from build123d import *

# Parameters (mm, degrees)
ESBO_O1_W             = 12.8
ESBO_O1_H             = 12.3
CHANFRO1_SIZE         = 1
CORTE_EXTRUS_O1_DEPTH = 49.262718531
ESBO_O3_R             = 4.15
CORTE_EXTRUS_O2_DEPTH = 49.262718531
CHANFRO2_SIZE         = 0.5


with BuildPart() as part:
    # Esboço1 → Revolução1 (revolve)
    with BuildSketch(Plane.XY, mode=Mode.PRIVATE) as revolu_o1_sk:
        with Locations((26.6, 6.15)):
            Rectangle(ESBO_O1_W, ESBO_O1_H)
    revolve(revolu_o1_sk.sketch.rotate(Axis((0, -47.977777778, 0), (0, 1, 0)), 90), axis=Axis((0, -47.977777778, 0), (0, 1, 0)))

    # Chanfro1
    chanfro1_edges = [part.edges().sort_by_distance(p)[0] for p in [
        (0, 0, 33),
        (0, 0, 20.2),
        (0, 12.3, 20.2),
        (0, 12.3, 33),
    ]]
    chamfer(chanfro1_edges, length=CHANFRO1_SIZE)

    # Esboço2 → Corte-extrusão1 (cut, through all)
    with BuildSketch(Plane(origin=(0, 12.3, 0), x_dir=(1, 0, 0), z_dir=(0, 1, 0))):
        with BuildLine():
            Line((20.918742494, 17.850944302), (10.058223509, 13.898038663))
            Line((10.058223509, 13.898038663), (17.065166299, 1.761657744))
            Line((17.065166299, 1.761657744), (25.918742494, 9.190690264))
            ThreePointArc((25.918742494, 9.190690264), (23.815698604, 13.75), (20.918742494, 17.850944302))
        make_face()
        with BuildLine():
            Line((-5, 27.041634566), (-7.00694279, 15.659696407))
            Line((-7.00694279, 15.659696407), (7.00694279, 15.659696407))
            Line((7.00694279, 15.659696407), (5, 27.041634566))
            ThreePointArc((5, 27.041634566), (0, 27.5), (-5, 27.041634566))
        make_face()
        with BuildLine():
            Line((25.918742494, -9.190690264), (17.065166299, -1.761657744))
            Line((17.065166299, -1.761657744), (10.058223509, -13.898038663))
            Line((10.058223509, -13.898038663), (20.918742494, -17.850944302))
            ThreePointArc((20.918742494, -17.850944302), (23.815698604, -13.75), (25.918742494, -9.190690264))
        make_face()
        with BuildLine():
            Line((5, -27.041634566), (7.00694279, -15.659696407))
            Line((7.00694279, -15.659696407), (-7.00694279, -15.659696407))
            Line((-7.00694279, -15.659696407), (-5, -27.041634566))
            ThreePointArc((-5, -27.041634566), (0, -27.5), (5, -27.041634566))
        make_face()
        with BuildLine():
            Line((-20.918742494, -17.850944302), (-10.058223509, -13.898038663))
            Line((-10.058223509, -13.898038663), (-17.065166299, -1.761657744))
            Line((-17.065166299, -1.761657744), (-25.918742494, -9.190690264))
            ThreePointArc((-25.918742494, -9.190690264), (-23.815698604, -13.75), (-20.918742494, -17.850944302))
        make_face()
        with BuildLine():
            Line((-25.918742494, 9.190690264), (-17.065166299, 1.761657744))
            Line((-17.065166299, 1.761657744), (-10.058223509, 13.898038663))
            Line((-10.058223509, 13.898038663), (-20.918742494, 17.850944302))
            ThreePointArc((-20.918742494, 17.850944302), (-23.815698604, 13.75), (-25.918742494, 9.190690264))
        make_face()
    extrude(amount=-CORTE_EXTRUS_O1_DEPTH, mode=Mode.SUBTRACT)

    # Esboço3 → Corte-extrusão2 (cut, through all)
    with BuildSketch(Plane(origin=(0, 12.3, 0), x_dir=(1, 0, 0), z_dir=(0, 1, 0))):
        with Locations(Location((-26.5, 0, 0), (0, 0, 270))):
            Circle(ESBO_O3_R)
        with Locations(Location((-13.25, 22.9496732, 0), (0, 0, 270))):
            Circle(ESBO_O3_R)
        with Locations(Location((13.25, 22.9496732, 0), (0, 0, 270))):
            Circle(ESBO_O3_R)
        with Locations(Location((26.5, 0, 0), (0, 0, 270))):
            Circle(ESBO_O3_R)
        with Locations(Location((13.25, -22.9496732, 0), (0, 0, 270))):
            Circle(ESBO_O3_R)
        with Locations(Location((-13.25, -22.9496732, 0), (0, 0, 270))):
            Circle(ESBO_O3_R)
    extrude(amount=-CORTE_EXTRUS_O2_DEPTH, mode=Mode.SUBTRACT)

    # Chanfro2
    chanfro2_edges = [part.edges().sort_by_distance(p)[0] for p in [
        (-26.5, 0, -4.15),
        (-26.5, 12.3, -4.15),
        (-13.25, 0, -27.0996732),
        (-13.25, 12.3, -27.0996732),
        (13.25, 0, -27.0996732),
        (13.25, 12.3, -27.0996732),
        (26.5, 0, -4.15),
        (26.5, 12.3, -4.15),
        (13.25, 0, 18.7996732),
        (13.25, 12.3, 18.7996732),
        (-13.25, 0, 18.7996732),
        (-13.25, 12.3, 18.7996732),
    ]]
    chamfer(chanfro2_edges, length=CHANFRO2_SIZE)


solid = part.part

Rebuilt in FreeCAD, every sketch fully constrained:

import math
import FreeCAD as App
import Part
import Sketcher
from FreeCAD import Vector
Q = App.Units.Quantity


def edges_at(feature, points):
    """Names of the edges that pass closest to the given points."""
    edges = feature.Shape.Edges
    near = lambda p: min(range(len(edges)), key=lambda i: edges[i].distToShape(Part.Vertex(*p))[0])
    return sorted({f"Edge{near(p) + 1}" for p in points})


def add_polygon(sketch, points):
    """Adds a closed chain of lines whose ends are joined by coincident constraints."""
    first, n = sketch.GeometryCount, len(points)
    for a, b in zip(points, points[1:] + points[:1]):
        sketch.addGeometry(Part.LineSegment(App.Vector(*a, 0), App.Vector(*b, 0)), False)
    for i in range(n):
        sketch.addConstraint(Sketcher.Constraint("Coincident", first + i, 2, first + (i + 1) % n, 1))

doc = App.newDocument("Part")
body = doc.addObject("PartDesign::Body", "Body")

sketch1 = doc.addObject("Sketcher::SketchObject", "Sketch")
body.addObject(sketch1)
sketch1.AttachmentSupport = (doc.XY_Plane, [""])
sketch1.MapMode = "FlatFace"
add_polygon(sketch1, [(20, 12), (20, 0), (33, 0), (33, 12)])
sketch1.addConstraint(Sketcher.Constraint("Vertical", 0))
sketch1.addConstraint(Sketcher.Constraint("Horizontal", 1))
sketch1.addConstraint(Sketcher.Constraint("Vertical", 2))
sketch1.addConstraint(Sketcher.Constraint("Horizontal", 3))
sketch1.addConstraint(Sketcher.Constraint("PointOnObject", 0, 2, -1))
sketch1.addConstraint(Sketcher.Constraint("DistanceX", 1, 1, 1, 2, 12.8))
sketch1.addConstraint(Sketcher.Constraint("DistanceY", 0, 2, 0, 1, 12.3))
sketch1.addConstraint(Sketcher.Constraint("DistanceX", -1, 1, 1, 2, 33.0))
revolution = doc.addObject("PartDesign::Revolution", "Revolution")
body.addObject(revolution)
revolution.Profile = sketch1
revolution.ReferenceAxis = (sketch1, ["V_Axis"])
revolution.Angle = 360
doc.recompute()

chamfer = doc.addObject("PartDesign::Chamfer", "Chamfer")
body.addObject(chamfer)
chamfer.Base = (revolution, edges_at(revolution, [
    (0, 0, 33),
    (0, 0, 20.2),
    (0, 12.3, 20.2),
    (0, 12.3, 33),
]))
chamfer.Size = 1

sketch2 = doc.addObject("Sketcher::SketchObject", "Sketch001")
body.addObject(sketch2)
sketch2.AttachmentSupport = (doc.XZ_Plane, [""])
sketch2.MapMode = "FlatFace"
sketch2.AttachmentOffset = App.Placement(Vector(0, 0, -12.3), App.Rotation())
sketch2.addGeometry(Part.LineSegment(Vector(21, -18, 0), Vector(10, -14, 0)), False)
sketch2.addGeometry(Part.LineSegment(Vector(10, -14, 0), Vector(17, -2, 0)), False)
sketch2.addGeometry(Part.LineSegment(Vector(17, -2, 0), Vector(26, -9, 0)), False)
sketch2.addGeometry(Part.ArcOfCircle(Part.Circle(Vector(0, 0, 0), Vector(0, 0, 1), 28), math.radians(-40), math.radians(-20)), False)
sketch2.addGeometry(Part.LineSegment(Vector(-5, -27, 0), Vector(-7, -16, 0)), False)
sketch2.addGeometry(Part.LineSegment(Vector(-7, -16, 0), Vector(7, -16, 0)), False)
sketch2.addGeometry(Part.LineSegment(Vector(7, -16, 0), Vector(5, -27, 0)), False)
sketch2.addGeometry(Part.ArcOfCircle(Part.Circle(Vector(0, 0, 0), Vector(0, 0, 1), 28), math.radians(-100), math.radians(-80)), False)
sketch2.addGeometry(Part.LineSegment(Vector(26, 9, 0), Vector(17, 2, 0)), False)
sketch2.addGeometry(Part.LineSegment(Vector(17, 2, 0), Vector(10, 14, 0)), False)
sketch2.addGeometry(Part.LineSegment(Vector(10, 14, 0), Vector(21, 18, 0)), False)
sketch2.addGeometry(Part.ArcOfCircle(Part.Circle(Vector(0, 0, 0), Vector(0, 0, 1), 28), math.radians(20), math.radians(40)), False)
sketch2.addGeometry(Part.LineSegment(Vector(5, 27, 0), Vector(7, 16, 0)), False)
sketch2.addGeometry(Part.LineSegment(Vector(7, 16, 0), Vector(-7, 16, 0)), False)
sketch2.addGeometry(Part.LineSegment(Vector(-7, 16, 0), Vector(-5, 27, 0)), False)
sketch2.addGeometry(Part.ArcOfCircle(Part.Circle(Vector(0, 0, 0), Vector(0, 0, 1), 28), math.radians(80), math.radians(100)), False)
sketch2.addGeometry(Part.LineSegment(Vector(-21, 18, 0), Vector(-10, 14, 0)), False)
sketch2.addGeometry(Part.LineSegment(Vector(-10, 14, 0), Vector(-17, 2, 0)), False)
sketch2.addGeometry(Part.LineSegment(Vector(-17, 2, 0), Vector(-26, 9, 0)), False)
sketch2.addGeometry(Part.ArcOfCircle(Part.Circle(Vector(0, 0, 0), Vector(0, 0, 1), 28), math.radians(140), math.radians(160)), False)
sketch2.addGeometry(Part.LineSegment(Vector(-26, -9, 0), Vector(-17, -2, 0)), False)
sketch2.addGeometry(Part.LineSegment(Vector(-17, -2, 0), Vector(-10, -14, 0)), False)
sketch2.addGeometry(Part.LineSegment(Vector(-10, -14, 0), Vector(-21, -18, 0)), False)
sketch2.addGeometry(Part.ArcOfCircle(Part.Circle(Vector(0, 0, 0), Vector(0, 0, 1), 28), math.radians(-160), math.radians(-140)), False)
sketch2.addConstraint(Sketcher.Constraint("Coincident", 0, 2, 1, 1))
sketch2.addConstraint(Sketcher.Constraint("Coincident", 1, 2, 2, 1))
sketch2.addConstraint(Sketcher.Constraint("Coincident", 2, 2, 3, 2))
sketch2.addConstraint(Sketcher.Constraint("Coincident", 3, 1, 0, 1))
sketch2.addConstraint(Sketcher.Constraint("Coincident", 4, 2, 5, 1))
sketch2.addConstraint(Sketcher.Constraint("Coincident", 5, 2, 6, 1))
sketch2.addConstraint(Sketcher.Constraint("Coincident", 6, 2, 7, 2))
sketch2.addConstraint(Sketcher.Constraint("Coincident", 7, 1, 4, 1))
sketch2.addConstraint(Sketcher.Constraint("Coincident", 8, 2, 9, 1))
sketch2.addConstraint(Sketcher.Constraint("Coincident", 9, 2, 10, 1))
sketch2.addConstraint(Sketcher.Constraint("Coincident", 10, 2, 11, 2))
sketch2.addConstraint(Sketcher.Constraint("Coincident", 11, 1, 8, 1))
sketch2.addConstraint(Sketcher.Constraint("Coincident", 12, 2, 13, 1))
sketch2.addConstraint(Sketcher.Constraint("Coincident", 13, 2, 14, 1))
sketch2.addConstraint(Sketcher.Constraint("Coincident", 14, 2, 15, 2))
sketch2.addConstraint(Sketcher.Constraint("Coincident", 15, 1, 12, 1))
sketch2.addConstraint(Sketcher.Constraint("Coincident", 16, 2, 17, 1))
sketch2.addConstraint(Sketcher.Constraint("Coincident", 17, 2, 18, 1))
sketch2.addConstraint(Sketcher.Constraint("Coincident", 18, 2, 19, 2))
sketch2.addConstraint(Sketcher.Constraint("Coincident", 19, 1, 16, 1))
sketch2.addConstraint(Sketcher.Constraint("Coincident", 20, 2, 21, 1))
sketch2.addConstraint(Sketcher.Constraint("Coincident", 21, 2, 22, 1))
sketch2.addConstraint(Sketcher.Constraint("Coincident", 22, 2, 23, 2))
sketch2.addConstraint(Sketcher.Constraint("Coincident", 23, 1, 20, 1))
sketch2.addConstraint(Sketcher.Constraint("Horizontal", 5))
sketch2.addConstraint(Sketcher.Constraint("Horizontal", 13))
sketch2.addConstraint(Sketcher.Constraint("Coincident", 3, 3, -1, 1))
sketch2.addConstraint(Sketcher.Constraint("Coincident", 7, 3, -1, 1))
sketch2.addConstraint(Sketcher.Constraint("Coincident", 11, 3, -1, 1))
sketch2.addConstraint(Sketcher.Constraint("Coincident", 15, 3, -1, 1))
sketch2.addConstraint(Sketcher.Constraint("Coincident", 19, 3, -1, 1))
sketch2.addConstraint(Sketcher.Constraint("Coincident", 23, 3, -1, 1))
sketch2.addConstraint(Sketcher.Constraint("Equal", 3, 7))
sketch2.addConstraint(Sketcher.Constraint("Equal", 7, 11))
sketch2.addConstraint(Sketcher.Constraint("Equal", 11, 15))
sketch2.addConstraint(Sketcher.Constraint("Equal", 15, 19))
sketch2.addConstraint(Sketcher.Constraint("Equal", 19, 23))
sketch2.addConstraint(Sketcher.Constraint("Symmetric", 4, 2, 12, 2, -1, 1))
sketch2.addConstraint(Sketcher.Constraint("Symmetric", 0, 2, 16, 2, -1, 1))
sketch2.addConstraint(Sketcher.Constraint("Symmetric", 1, 2, 17, 2, -1, 1))
sketch2.addConstraint(Sketcher.Constraint("Symmetric", 8, 2, 20, 2, -1, 1))
sketch2.addConstraint(Sketcher.Constraint("Symmetric", 9, 2, 21, 2, -1, 1))
sketch2.addConstraint(Sketcher.Constraint("Symmetric", 9, 2, 16, 2, -2))
sketch2.addConstraint(Sketcher.Constraint("Symmetric", 8, 2, 17, 2, -2))
sketch2.addConstraint(Sketcher.Constraint("Parallel", 4, 12))
sketch2.addConstraint(Sketcher.Constraint("Parallel", 6, 14))
sketch2.addConstraint(Sketcher.Constraint("Parallel", 0, 16))
sketch2.addConstraint(Sketcher.Constraint("Parallel", 2, 18))
sketch2.addConstraint(Sketcher.Constraint("Parallel", 8, 20))
sketch2.addConstraint(Sketcher.Constraint("Parallel", 10, 22))
sketch2.addConstraint(Sketcher.Constraint("Horizontal", 6, 2, 7, 1))
sketch2.addConstraint(Sketcher.Constraint("Horizontal", 14, 2, 15, 1))
sketch2.addConstraint(Sketcher.Constraint("Horizontal", 11, 1, 18, 2))
sketch2.addConstraint(Sketcher.Constraint("Horizontal", 10, 2, 19, 1))
sketch2.addConstraint(Sketcher.Constraint("Vertical", 5, 2, 12, 2))
sketch2.addConstraint(Sketcher.Constraint("Equal", 0, 2))
sketch2.addConstraint(Sketcher.Constraint("Equal", 2, 4))
sketch2.addConstraint(Sketcher.Constraint("Radius", 3, 27.5))
sketch2.addConstraint(Sketcher.Constraint("Angle", 0, Q("160 deg")))
sketch2.addConstraint(Sketcher.Constraint("Angle", 1, Q("60 deg")))
sketch2.addConstraint(Sketcher.Constraint("Angle", 2, Q("-40 deg")))
sketch2.addConstraint(Sketcher.Constraint("Angle", 4, Q("100 deg")))
sketch2.addConstraint(Sketcher.Constraint("DistanceX", -1, 1, 6, 2, 5.0))
sketch2.addConstraint(Sketcher.Constraint("DistanceX", 3, 1, 2, 2, 5.0))
sketch2.addConstraint(Sketcher.Constraint("DistanceX", 12, 2, 10, 2, 13.9118))
pocket1 = doc.addObject("PartDesign::Pocket", "Pocket")
body.addObject(pocket1)
pocket1.Profile = sketch2
pocket1.Type = "ThroughAll"
pocket1.Reversed = True

sketch3 = doc.addObject("Sketcher::SketchObject", "Sketch002")
body.addObject(sketch3)
sketch3.AttachmentSupport = (doc.XZ_Plane, [""])
sketch3.MapMode = "FlatFace"
sketch3.AttachmentOffset = App.Placement(Vector(0, 0, -12.3), App.Rotation())
sketch3.addGeometry(Part.Circle(Vector(-26.5, 0, 0), Vector(0, 0, 1), 4.2), False)
sketch3.addGeometry(Part.Circle(Vector(-13.2, -22.9, 0), Vector(0, 0, 1), 4.2), False)
sketch3.addGeometry(Part.Circle(Vector(13.2, -22.9, 0), Vector(0, 0, 1), 4.2), False)
sketch3.addGeometry(Part.Circle(Vector(26.5, 0, 0), Vector(0, 0, 1), 4.2), False)
sketch3.addGeometry(Part.Circle(Vector(13.2, 22.9, 0), Vector(0, 0, 1), 4.2), False)
sketch3.addGeometry(Part.Circle(Vector(-13.2, 22.9, 0), Vector(0, 0, 1), 4.2), False)
sketch3.addConstraint(Sketcher.Constraint("Equal", 0, 1))
sketch3.addConstraint(Sketcher.Constraint("Equal", 1, 2))
sketch3.addConstraint(Sketcher.Constraint("Equal", 2, 3))
sketch3.addConstraint(Sketcher.Constraint("Equal", 3, 4))
sketch3.addConstraint(Sketcher.Constraint("Equal", 4, 5))
sketch3.addConstraint(Sketcher.Constraint("Symmetric", 0, 3, 3, 3, -1, 1))
sketch3.addConstraint(Sketcher.Constraint("Symmetric", 1, 3, 4, 3, -1, 1))
sketch3.addConstraint(Sketcher.Constraint("Symmetric", 2, 3, 5, 3, -1, 1))
sketch3.addConstraint(Sketcher.Constraint("Symmetric", 1, 3, 2, 3, -2))
sketch3.addConstraint(Sketcher.Constraint("PointOnObject", 0, 3, -1))
sketch3.addConstraint(Sketcher.Constraint("Diameter", 0, 8.3))
sketch3.addConstraint(Sketcher.Constraint("DistanceX", 0, 3, 3, 3, 53.0))
sketch3.addConstraint(Sketcher.Constraint("DistanceX", 1, 3, 2, 3, 26.5))
sketch3.addConstraint(Sketcher.Constraint("DistanceY", 1, 3, -1, 1, 22.949673))
pocket2 = doc.addObject("PartDesign::Pocket", "Pocket001")
body.addObject(pocket2)
pocket2.Profile = sketch3
pocket2.Type = "ThroughAll"
pocket2.Reversed = True
doc.recompute()

chamfer2 = doc.addObject("PartDesign::Chamfer", "Chamfer001")
body.addObject(chamfer2)
chamfer2.Base = (pocket2, edges_at(pocket2, [
    (-26.5, 0, -4.15),
    (-26.5, 12.3, -4.15),
    (-13.25, 0, -27.1),
    (-13.25, 12.3, -27.1),
    (13.25, 0, -27.1),
    (13.25, 12.3, -27.1),
    (26.5, 0, -4.15),
    (26.5, 12.3, -4.15),
    (13.25, 0, 18.8),
    (13.25, 12.3, 18.8),
    (-13.25, 0, 18.8),
    (-13.25, 12.3, 18.8),
]))
chamfer2.Size = 0.5

doc.recompute()
